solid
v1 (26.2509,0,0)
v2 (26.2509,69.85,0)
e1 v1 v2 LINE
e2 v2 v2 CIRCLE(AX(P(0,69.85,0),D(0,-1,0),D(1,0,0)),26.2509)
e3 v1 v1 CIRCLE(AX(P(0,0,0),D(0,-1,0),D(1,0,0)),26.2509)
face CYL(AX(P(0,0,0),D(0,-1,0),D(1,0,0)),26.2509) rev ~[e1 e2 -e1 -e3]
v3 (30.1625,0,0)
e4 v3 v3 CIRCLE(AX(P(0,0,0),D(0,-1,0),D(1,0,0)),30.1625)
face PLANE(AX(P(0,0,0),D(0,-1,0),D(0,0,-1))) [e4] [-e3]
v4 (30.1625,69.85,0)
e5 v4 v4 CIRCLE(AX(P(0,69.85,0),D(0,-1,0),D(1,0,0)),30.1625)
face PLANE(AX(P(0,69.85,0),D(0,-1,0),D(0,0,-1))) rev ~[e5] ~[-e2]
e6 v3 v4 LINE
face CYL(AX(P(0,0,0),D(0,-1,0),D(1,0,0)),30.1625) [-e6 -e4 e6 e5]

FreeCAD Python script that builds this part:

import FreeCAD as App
import Part
import Sketcher
Q = App.Units.Quantity

doc = App.newDocument("Part")
body = doc.addObject("PartDesign::Body", "Body")

sketch1 = body.newObject("Sketcher::SketchObject", "Sketch")
sketch1.AttachmentSupport = (doc.getObject("XZ_Plane"), [""])
sketch1.MapMode = "FlatFace"
sketch1.addGeometry([
    Part.Circle(App.Vector(0, 0, 0), App.Vector(0, 0, 1), 30.1625),
    Part.Circle(App.Vector(0, 0, 0), App.Vector(0, 0, 1), 26.2509),
], False)
sketch1.addConstraint([
    Sketcher.Constraint("Coincident", 0, 3, -1, 1),
    Sketcher.Constraint("Coincident", 1, 3, -1, 1),
    Sketcher.Constraint("Diameter", 0, Q("2.375 in")),
    Sketcher.Constraint("Diameter", 1, Q("2.067 in")),
])
pad1 = body.newObject("PartDesign::Pad", "Pad")
pad1.Profile = sketch1
pad1.Length = Q("2.75 in")
pad1.Reversed = True

doc.recompute()
